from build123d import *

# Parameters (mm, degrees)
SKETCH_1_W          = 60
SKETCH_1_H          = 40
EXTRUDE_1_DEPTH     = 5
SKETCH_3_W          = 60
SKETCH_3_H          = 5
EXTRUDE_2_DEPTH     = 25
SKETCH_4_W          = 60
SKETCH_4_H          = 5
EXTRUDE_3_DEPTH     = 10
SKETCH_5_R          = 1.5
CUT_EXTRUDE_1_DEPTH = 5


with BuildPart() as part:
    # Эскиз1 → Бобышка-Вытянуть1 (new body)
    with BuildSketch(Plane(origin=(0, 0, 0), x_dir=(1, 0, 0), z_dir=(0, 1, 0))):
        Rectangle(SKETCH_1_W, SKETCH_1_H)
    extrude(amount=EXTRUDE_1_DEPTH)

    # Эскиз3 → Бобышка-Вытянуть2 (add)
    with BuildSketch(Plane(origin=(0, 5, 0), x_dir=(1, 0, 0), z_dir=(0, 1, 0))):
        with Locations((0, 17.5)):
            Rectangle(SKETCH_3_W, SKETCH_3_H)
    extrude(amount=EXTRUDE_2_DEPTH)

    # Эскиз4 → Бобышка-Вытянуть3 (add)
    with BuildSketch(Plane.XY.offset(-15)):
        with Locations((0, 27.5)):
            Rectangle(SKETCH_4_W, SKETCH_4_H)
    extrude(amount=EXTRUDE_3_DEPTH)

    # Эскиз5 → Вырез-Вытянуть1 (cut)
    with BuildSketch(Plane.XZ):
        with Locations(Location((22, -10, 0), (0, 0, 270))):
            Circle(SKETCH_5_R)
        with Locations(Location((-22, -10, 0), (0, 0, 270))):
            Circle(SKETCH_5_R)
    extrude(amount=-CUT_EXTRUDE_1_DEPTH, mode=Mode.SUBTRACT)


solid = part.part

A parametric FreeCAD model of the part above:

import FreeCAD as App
import Part
import Sketcher

V = App.Vector


def add_polygon(sketch, points):
    """Adds a closed chain of lines whose ends are joined by coincident constraints."""
    first, n = sketch.GeometryCount, len(points)
    for a, b in zip(points, points[1:] + points[:1]):
        sketch.addGeometry(Part.LineSegment(App.Vector(*a, 0), App.Vector(*b, 0)), False)
    for i in range(n):
        sketch.addConstraint(Sketcher.Constraint("Coincident", first + i, 2, first + (i + 1) % n, 1))

doc = App.newDocument("Part")
params = doc.addObject("Spreadsheet::Sheet", "Params")
for row, (alias, value) in enumerate([
    ("sketch1_width", "60 mm"),
    ("sketch1_height", "40 mm"),
    ("pad1_length", "5 mm"),
    ("sketch2_width", "60 mm"),
    ("sketch2_height", "5 mm"),
    ("pad2_length", "25 mm"),
    ("sketch3_width", "60 mm"),
    ("sketch3_height", "5 mm"),
    ("pad3_length", "10 mm"),
    ("sketch4_diameter", "3 mm"),
    ("pocket1_length", "5 mm"),
], start=1):
    params.set(f"A{row}", alias)
    params.set(f"B{row}", "=" + value)
    params.setAlias(f"B{row}", alias)

body = doc.addObject("PartDesign::Body", "Body")

sketch1 = body.newObject("Sketcher::SketchObject", "Sketch")
sketch1.AttachmentSupport = (doc.getObject("XZ_Plane"), [""])
sketch1.MapMode = "FlatFace"
add_polygon(sketch1, [(-30, -20), (-30, 20), (30, 20), (30, -20)])
sketch1.addConstraint([
    Sketcher.Constraint("Vertical", 0),
    Sketcher.Constraint("Horizontal", 1),
    Sketcher.Constraint("Vertical", 2),
    Sketcher.Constraint("Horizontal", 3),
    Sketcher.Constraint("Symmetric", 0, 2, 2, 2, -1, 1),
    Sketcher.Constraint("DistanceX", 1, 1, 1, 2, 60.0),
    Sketcher.Constraint("DistanceY", 0, 1, 0, 2, 40.0),
])
sketch1.setExpression("Constraints[9]", "Params.sketch1_width")
sketch1.setExpression("Constraints[10]", "Params.sketch1_height")
pad1 = body.newObject("PartDesign::Pad", "Pad")
pad1.Profile = sketch1
pad1.setExpression("Length", "Params.pad1_length")
pad1.Reversed = True

sketch2 = body.newObject("Sketcher::SketchObject", "Sketch001")
sketch2.AttachmentSupport = (doc.getObject("XZ_Plane"), [""])
sketch2.MapMode = "FlatFace"
sketch2.AttachmentOffset = App.Placement(V(0, 0, -5), App.Rotation())
add_polygon(sketch2, [(-30, -20), (-30, -15), (30, -15), (30, -20)])
sketch2.addConstraint([
    Sketcher.Constraint("Vertical", 0),
    Sketcher.Constraint("Horizontal", 1),
    Sketcher.Constraint("Vertical", 2),
    Sketcher.Constraint("Horizontal", 3),
    Sketcher.Constraint("DistanceX", 1, 1, 1, 2, 60.0),
    Sketcher.Constraint("DistanceY", 0, 1, 0, 2, 5.0),
    Sketcher.Constraint("DistanceX", 0, 2, -1, 1, 30.0),
    Sketcher.Constraint("DistanceY", 0, 2, -1, 1, 15.0),
])
sketch2.setExpression("Constraints[8]", "Params.sketch2_width")
sketch2.setExpression("Constraints[9]", "Params.sketch2_height")
pad2 = body.newObject("PartDesign::Pad", "Pad001")
pad2.Profile = sketch2
pad2.setExpression("Length", "Params.pad2_length")
pad2.Reversed = True

sketch3 = body.newObject("Sketcher::SketchObject", "Sketch002")
sketch3.AttachmentSupport = (doc.getObject("XY_Plane"), [""])
sketch3.MapMode = "FlatFace"
sketch3.AttachmentOffset = App.Placement(V(0, 0, -15), App.Rotation())
add_polygon(sketch3, [(-30, 30), (-30, 25), (30, 25), (30, 30)])
sketch3.addConstraint([
    Sketcher.Constraint("Vertical", 0),
    Sketcher.Constraint("Horizontal", 1),
    Sketcher.Constraint("Vertical", 2),
    Sketcher.Constraint("Horizontal", 3),
    Sketcher.Constraint("DistanceX", 1, 1, 1, 2, 60.0),
    Sketcher.Constraint("DistanceY", 0, 2, 0, 1, 5.0),
    Sketcher.Constraint("DistanceX", 0, 2, -1, 1, 30.0),
    Sketcher.Constraint("DistanceY", -1, 1, 0, 2, 25.0),
])
sketch3.setExpression("Constraints[8]", "Params.sketch3_width")
sketch3.setExpression("Constraints[9]", "Params.sketch3_height")
pad3 = body.newObject("PartDesign::Pad", "Pad002")
pad3.Profile = sketch3
pad3.setExpression("Length", "Params.pad3_length")

sketch4 = body.newObject("Sketcher::SketchObject", "Sketch003")
sketch4.AttachmentSupport = (doc.getObject("XZ_Plane"), [""])
sketch4.MapMode = "FlatFace"
sketch4.addGeometry([
    Part.Circle(V(22, -10, 0), V(0, 0, 1), 1.5),
    Part.Circle(V(-22, -10, 0), V(0, 0, 1), 1.5),
], False)
sketch4.addConstraint([
    Sketcher.Constraint("Equal", 0, 1),
    Sketcher.Constraint("Symmetric", 0, 3, 1, 3, -2),
    Sketcher.Constraint("Diameter", 0, 3.0),
    Sketcher.Constraint("DistanceX", -1, 1, 0, 3, 22.0),
    Sketcher.Constraint("DistanceY", 0, 3, -1, 1, 10.0),
])
sketch4.setExpression("Constraints[2]", "Params.sketch4_diameter")
pocket1 = body.newObject("PartDesign::Pocket", "Pocket")
pocket1.Profile = sketch4
pocket1.setExpression("Length", "Params.pocket1_length")

doc.recompute()
